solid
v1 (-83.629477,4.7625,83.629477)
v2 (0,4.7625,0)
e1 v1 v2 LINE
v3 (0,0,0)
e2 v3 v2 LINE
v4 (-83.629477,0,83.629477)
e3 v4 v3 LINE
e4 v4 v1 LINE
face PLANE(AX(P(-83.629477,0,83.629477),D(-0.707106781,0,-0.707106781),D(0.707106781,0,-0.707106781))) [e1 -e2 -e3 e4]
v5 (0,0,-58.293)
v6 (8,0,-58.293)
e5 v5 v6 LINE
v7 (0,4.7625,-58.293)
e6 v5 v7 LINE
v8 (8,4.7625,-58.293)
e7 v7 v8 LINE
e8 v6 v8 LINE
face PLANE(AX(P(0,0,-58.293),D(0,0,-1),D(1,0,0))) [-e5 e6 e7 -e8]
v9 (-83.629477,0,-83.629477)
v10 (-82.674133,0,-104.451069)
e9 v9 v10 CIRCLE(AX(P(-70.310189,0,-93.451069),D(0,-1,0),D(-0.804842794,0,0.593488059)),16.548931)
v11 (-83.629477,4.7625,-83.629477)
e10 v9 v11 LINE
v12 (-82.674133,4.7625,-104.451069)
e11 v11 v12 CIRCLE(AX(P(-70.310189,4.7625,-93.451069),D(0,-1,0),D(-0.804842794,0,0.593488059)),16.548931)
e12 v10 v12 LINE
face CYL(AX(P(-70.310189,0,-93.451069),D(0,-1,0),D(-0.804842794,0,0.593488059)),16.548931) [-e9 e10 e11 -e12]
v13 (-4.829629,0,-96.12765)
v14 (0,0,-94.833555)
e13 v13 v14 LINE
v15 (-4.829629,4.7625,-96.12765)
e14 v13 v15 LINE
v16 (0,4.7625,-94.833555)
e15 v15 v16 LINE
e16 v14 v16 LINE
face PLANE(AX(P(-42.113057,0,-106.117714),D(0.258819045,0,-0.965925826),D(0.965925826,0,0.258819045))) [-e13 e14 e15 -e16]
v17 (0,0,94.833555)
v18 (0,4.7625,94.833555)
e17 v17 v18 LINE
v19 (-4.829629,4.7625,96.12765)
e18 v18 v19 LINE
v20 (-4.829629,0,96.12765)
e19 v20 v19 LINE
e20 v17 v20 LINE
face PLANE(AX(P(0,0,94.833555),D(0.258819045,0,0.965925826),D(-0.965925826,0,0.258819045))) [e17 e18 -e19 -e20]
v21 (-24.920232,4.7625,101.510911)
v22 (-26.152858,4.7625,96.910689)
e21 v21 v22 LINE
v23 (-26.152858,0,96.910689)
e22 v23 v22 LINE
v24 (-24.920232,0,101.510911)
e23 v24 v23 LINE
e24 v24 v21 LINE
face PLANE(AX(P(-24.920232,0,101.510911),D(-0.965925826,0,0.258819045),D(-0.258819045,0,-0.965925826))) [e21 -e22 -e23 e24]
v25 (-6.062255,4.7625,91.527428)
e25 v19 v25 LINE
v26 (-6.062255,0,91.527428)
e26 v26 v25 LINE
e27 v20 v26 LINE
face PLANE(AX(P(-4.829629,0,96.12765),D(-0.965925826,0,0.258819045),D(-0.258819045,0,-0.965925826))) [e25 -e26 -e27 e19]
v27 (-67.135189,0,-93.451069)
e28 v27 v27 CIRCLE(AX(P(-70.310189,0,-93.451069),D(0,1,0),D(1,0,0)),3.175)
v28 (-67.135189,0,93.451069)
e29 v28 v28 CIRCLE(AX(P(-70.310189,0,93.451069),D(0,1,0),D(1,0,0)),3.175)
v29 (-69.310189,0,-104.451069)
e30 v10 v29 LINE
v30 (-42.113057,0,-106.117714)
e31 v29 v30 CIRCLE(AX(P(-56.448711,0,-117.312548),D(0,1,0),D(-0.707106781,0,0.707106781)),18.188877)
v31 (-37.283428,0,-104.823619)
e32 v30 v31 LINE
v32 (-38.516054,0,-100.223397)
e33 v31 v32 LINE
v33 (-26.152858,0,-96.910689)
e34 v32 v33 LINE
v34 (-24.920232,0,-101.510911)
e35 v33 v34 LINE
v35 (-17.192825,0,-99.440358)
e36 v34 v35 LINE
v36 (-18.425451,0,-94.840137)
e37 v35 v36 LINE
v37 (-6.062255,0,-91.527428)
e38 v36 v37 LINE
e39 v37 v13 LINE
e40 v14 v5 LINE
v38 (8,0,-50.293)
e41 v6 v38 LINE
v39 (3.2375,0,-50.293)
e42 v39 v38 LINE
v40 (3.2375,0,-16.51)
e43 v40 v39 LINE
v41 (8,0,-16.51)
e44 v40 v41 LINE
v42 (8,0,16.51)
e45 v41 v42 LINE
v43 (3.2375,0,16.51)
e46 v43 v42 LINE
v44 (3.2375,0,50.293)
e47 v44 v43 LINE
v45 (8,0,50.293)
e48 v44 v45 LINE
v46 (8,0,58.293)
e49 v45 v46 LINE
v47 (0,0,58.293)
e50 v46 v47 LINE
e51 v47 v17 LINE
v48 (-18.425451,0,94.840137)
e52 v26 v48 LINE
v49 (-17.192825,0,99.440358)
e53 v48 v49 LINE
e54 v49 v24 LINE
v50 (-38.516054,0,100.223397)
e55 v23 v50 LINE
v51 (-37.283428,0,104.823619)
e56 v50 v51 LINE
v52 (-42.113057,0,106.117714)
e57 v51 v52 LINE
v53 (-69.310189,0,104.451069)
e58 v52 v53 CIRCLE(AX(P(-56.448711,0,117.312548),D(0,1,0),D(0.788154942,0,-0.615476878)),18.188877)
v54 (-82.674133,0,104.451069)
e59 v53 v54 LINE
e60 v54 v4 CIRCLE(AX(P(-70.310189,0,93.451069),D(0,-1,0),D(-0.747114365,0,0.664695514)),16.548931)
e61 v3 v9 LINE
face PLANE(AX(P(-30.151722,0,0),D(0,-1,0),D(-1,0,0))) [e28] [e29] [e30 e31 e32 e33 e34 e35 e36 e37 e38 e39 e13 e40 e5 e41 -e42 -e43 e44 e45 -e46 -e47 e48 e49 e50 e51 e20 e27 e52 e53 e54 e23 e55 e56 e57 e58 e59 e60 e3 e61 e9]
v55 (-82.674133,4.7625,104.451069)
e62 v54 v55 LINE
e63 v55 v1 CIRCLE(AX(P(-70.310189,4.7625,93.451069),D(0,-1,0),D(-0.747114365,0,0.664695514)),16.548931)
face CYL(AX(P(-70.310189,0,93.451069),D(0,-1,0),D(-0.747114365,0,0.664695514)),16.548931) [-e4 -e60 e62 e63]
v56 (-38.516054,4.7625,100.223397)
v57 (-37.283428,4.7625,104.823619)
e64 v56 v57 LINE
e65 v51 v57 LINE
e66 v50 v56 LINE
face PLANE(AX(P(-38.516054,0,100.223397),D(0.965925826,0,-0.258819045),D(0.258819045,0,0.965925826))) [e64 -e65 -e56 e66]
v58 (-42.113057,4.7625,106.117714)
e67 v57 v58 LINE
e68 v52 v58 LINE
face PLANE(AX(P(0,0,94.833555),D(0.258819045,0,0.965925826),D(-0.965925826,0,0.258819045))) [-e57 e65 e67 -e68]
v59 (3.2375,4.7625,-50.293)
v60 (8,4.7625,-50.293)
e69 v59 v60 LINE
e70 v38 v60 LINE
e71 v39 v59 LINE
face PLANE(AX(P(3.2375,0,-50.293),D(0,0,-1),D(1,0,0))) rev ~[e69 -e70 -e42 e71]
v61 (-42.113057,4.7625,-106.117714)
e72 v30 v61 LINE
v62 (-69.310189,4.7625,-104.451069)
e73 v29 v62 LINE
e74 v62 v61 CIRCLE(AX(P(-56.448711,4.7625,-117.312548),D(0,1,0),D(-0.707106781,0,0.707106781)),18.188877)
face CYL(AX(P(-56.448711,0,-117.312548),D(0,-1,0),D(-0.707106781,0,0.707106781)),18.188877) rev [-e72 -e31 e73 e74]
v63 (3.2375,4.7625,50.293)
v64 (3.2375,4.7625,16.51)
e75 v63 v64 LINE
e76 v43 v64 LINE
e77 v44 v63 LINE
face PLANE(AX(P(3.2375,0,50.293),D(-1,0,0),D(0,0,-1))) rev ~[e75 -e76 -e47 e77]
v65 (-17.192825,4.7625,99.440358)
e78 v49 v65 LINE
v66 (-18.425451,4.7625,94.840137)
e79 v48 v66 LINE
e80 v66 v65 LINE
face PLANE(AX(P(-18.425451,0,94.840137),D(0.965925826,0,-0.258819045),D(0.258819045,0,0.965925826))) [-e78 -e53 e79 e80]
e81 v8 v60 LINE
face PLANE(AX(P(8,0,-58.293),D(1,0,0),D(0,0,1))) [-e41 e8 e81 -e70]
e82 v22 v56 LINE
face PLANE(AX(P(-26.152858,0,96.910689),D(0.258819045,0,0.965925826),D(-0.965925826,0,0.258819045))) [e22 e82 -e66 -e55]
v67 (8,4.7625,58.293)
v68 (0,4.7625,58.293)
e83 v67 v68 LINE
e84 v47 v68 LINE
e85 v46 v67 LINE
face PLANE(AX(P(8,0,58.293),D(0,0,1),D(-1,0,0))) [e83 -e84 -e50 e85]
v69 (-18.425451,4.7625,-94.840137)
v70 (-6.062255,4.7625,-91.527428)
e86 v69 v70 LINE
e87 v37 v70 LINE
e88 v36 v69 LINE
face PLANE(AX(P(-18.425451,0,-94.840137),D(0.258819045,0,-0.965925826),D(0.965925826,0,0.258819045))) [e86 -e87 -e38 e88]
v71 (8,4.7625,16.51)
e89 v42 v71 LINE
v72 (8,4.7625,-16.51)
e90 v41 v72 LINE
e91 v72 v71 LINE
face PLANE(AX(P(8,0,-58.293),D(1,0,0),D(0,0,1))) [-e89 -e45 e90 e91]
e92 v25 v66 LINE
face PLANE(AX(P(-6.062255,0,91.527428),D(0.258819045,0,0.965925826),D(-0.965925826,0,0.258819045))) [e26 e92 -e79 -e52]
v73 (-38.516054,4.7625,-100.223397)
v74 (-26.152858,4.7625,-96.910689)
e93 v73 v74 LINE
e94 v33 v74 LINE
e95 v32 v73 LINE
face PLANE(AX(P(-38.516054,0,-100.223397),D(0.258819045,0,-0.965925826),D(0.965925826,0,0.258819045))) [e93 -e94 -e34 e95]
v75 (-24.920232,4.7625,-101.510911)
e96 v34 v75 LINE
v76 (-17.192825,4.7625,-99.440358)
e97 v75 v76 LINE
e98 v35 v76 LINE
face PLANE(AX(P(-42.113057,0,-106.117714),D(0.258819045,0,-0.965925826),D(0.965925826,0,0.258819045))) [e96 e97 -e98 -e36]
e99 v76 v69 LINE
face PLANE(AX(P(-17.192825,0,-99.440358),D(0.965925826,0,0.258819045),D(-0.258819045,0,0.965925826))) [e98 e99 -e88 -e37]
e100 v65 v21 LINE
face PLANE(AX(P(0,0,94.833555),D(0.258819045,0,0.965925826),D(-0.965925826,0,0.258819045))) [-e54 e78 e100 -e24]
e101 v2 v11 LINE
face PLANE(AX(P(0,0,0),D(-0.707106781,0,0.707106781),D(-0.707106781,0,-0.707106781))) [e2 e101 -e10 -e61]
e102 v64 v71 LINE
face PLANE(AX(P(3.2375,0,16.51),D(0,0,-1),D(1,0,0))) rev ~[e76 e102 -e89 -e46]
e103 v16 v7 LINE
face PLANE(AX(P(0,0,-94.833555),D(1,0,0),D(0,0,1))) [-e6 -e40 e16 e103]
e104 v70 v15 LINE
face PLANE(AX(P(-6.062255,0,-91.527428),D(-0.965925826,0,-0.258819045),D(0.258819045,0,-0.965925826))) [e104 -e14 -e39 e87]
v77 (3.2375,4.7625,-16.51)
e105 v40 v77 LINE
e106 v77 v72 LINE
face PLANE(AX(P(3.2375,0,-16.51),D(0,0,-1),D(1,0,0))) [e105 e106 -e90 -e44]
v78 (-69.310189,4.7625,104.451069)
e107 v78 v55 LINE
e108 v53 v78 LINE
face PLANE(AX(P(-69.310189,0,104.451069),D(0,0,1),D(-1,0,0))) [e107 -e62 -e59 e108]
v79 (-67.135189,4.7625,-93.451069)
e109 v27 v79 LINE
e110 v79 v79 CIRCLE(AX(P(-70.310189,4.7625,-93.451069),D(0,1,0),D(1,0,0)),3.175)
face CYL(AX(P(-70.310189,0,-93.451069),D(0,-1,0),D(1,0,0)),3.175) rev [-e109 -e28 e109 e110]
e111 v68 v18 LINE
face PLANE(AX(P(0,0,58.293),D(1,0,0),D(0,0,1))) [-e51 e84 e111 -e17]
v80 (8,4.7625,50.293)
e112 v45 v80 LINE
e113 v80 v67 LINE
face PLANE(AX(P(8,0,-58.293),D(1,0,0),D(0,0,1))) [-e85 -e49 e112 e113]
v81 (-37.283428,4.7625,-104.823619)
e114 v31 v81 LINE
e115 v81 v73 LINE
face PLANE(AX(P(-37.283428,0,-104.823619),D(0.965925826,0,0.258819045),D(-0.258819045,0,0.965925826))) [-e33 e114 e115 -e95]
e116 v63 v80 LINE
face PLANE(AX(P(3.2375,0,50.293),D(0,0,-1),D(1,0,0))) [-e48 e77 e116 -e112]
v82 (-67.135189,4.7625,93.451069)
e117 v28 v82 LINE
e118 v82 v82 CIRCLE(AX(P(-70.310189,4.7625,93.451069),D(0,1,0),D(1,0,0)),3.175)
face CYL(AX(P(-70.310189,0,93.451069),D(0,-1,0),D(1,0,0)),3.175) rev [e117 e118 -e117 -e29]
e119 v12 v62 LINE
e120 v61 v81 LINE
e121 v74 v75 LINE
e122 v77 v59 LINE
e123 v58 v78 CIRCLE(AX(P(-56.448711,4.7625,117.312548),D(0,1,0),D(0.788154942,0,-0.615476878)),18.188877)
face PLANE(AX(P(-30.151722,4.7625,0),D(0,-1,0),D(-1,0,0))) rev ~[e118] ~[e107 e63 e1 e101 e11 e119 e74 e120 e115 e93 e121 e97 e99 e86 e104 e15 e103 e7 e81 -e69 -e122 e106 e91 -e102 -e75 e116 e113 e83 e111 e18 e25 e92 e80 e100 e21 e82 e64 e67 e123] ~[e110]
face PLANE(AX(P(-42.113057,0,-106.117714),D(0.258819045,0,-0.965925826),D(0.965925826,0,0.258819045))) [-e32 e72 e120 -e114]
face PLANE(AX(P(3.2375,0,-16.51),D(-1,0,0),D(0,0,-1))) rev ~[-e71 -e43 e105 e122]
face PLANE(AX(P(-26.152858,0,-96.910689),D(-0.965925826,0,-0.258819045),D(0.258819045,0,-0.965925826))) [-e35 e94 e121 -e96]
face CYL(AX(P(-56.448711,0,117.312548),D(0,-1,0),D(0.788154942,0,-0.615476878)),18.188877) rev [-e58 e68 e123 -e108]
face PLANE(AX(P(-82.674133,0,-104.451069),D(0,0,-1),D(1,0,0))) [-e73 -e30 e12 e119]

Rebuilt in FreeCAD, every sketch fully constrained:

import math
import FreeCAD as App
import Part
import Sketcher
Q = App.Units.Quantity

doc = App.newDocument("Part")
params = doc.addObject("Spreadsheet::Sheet", "Params")
for row, (alias, value) in enumerate([
    ("sketch1_diameter", "0.25 in"),
    ("sketch1_height", "4.59 in"),
    ("pad1_length", "0.1875 in"),
    ("sketch2_width", "0.1875 in"),
    ("sketch2_length", "0.1875 in"),
    ("pocket1_length", "5 mm"),
], start=1):
    params.set(f"A{row}", alias)
    params.set(f"B{row}", "=" + value)
    params.setAlias(f"B{row}", alias)

body = doc.addObject("PartDesign::Body", "Body")

sketch1 = body.newObject("Sketcher::SketchObject", "Sketch")
sketch1.AttachmentSupport = (doc.getObject("XZ_Plane"), [""])
sketch1.MapMode = "FlatFace"
sketch1.addGeometry([
    Part.LineSegment(App.Vector(-69.310189, -104.451069, 0), App.Vector(-82.674133, -104.451069, 0)),
    Part.ArcOfCircle(Part.Circle(App.Vector(-70.310189, -93.451069, 0), App.Vector(0, 0, 1), 16.548931), math.radians(143.595076), math.radians(221.65897)),
    Part.LineSegment(App.Vector(-83.629477, -83.629477, 0), App.Vector(0, 0, 0)),
    Part.LineSegment(App.Vector(0, 0, 0), App.Vector(-83.629477, 83.629477, 0)),
    Part.ArcOfCircle(Part.Circle(App.Vector(-70.310189, 93.451069, 0), App.Vector(0, 0, 1), 16.548931), math.radians(138.34103), math.radians(216.404924)),
    Part.LineSegment(App.Vector(-82.674133, 104.451069, 0), App.Vector(-69.310189, 104.451069, 0)),
    Part.ArcOfCircle(Part.Circle(App.Vector(-56.448711, 117.312548, 0), App.Vector(0, 0, 1), 18.188877), math.radians(-135), math.radians(-37.986579)),
    Part.LineSegment(App.Vector(-42.113057, 106.117714, 0), App.Vector(0, 94.833555, 0)),
    Part.LineSegment(App.Vector(0, 94.833555, 0), App.Vector(0, 58.293, 0)),
    Part.LineSegment(App.Vector(0, 58.293, 0), App.Vector(8, 58.293, 0)),
    Part.LineSegment(App.Vector(8, 58.293, 0), App.Vector(8, -58.293, 0)),
    Part.LineSegment(App.Vector(8, -58.293, 0), App.Vector(0, -58.293, 0)),
    Part.LineSegment(App.Vector(0, -58.293, 0), App.Vector(0, -94.833555, 0)),
    Part.LineSegment(App.Vector(0, -94.833555, 0), App.Vector(-42.113057, -106.117714, 0)),
    Part.ArcOfCircle(Part.Circle(App.Vector(-56.448711, -117.312548, 0), App.Vector(0, 0, 1), 18.188877), math.radians(37.986579), math.radians(135)),
    Part.Circle(App.Vector(-70.310189, 93.451069, 0), App.Vector(0, 0, 1), 3.175),
    Part.Circle(App.Vector(-70.310189, -93.451069, 0), App.Vector(0, 0, 1), 3.175),
], False)
sketch1.addConstraint([
    Sketcher.Constraint("Coincident", 0, 2, 1, 2),
    Sketcher.Constraint("Coincident", 1, 1, 2, 1),
    Sketcher.Constraint("Coincident", 2, 2, 3, 1),
    Sketcher.Constraint("Coincident", 3, 2, 4, 2),
    Sketcher.Constraint("Coincident", 4, 1, 5, 1),
    Sketcher.Constraint("Coincident", 5, 2, 6, 1),
    Sketcher.Constraint("Coincident", 6, 2, 7, 1),
    Sketcher.Constraint("Coincident", 7, 2, 8, 1),
    Sketcher.Constraint("Coincident", 8, 2, 9, 1),
    Sketcher.Constraint("Coincident", 9, 2, 10, 1),
    Sketcher.Constraint("Coincident", 10, 2, 11, 1),
    Sketcher.Constraint("Coincident", 11, 2, 12, 1),
    Sketcher.Constraint("Coincident", 12, 2, 13, 1),
    Sketcher.Constraint("Coincident", 13, 2, 14, 1),
    Sketcher.Constraint("Coincident", 14, 2, 0, 1),
    Sketcher.Constraint("Horizontal", 0),
    Sketcher.Constraint("Horizontal", 5),
    Sketcher.Constraint("Vertical", 8),
    Sketcher.Constraint("Horizontal", 9),
    Sketcher.Constraint("Vertical", 10),
    Sketcher.Constraint("Horizontal", 11),
    Sketcher.Constraint("Vertical", 12),
    Sketcher.Constraint("Coincident", 2, 2, -1, 1),
    Sketcher.Constraint("Coincident", 15, 3, 4, 3),
    Sketcher.Constraint("Coincident", 16, 3, 1, 3),
    Sketcher.Constraint("Equal", 1, 4),
    Sketcher.Constraint("Equal", 6, 14),
    Sketcher.Constraint("Equal", 15, 16),
    Sketcher.Constraint("Symmetric", 8, 2, 11, 2, -1, 1),
    Sketcher.Constraint("Symmetric", 1, 3, 4, 3, -1),
    Sketcher.Constraint("Symmetric", 6, 3, 14, 3, -1),
    Sketcher.Constraint("Symmetric", 7, 2, 12, 2, -1),
    Sketcher.Constraint("Perpendicular", 2, 3),
    Sketcher.Constraint("Vertical", 1, 1, 3, 2),
    Sketcher.Constraint("Vertical", 0, 2, 4, 1),
    Sketcher.Constraint("Vertical", 6, 2, 13, 2),
    Sketcher.Constraint("Diameter", 15, Q("0.25 in")),
    Sketcher.Constraint("Angle", 7, Q("-15 deg")),
    Sketcher.Constraint("DistanceY", 10, 2, 10, 1, Q("4.59 in")),
    Sketcher.Constraint("Radius", 1, 16.548931),
    Sketcher.Constraint("DistanceX", 9, 1, 9, 2, 8.0),
    Sketcher.Constraint("Radius", 6, 18.188877),
    Sketcher.Constraint("DistanceY", 0, 2, 1, 3, 11.0),
    Sketcher.Constraint("DistanceX", 15, 3, 5, 2, 1.0),
    Sketcher.Constraint("Distance", 2, 118.26994),
    Sketcher.Constraint("DistanceY", 8, 2, 8, 1, 36.540555),
    Sketcher.Constraint("DistanceX", 1, 3, -1, 1, 70.310189),
    Sketcher.Constraint("DistanceX", 6, 3, -1, 1, 56.448711),
])
sketch1.setExpression("Constraints[36]", "Params.sketch1_diameter")
sketch1.setExpression("Constraints[38]", "Params.sketch1_height")
pad1 = body.newObject("PartDesign::Pad", "Pad")
pad1.Profile = sketch1
pad1.setExpression("Length", "Params.pad1_length")
pad1.Reversed = True

sketch2 = body.newObject("Sketcher::SketchObject", "Sketch001")
sketch2.AttachmentSupport = (doc.getObject("XZ_Plane"), [""])
sketch2.MapMode = "FlatFace"
sketch2.addGeometry([
    Part.LineSegment(App.Vector(-17.192825, 99.440358, 0), App.Vector(-4.829629, 96.12765, 0)),
    Part.LineSegment(App.Vector(-4.829629, 96.12765, 0), App.Vector(-6.062255, 91.527428, 0)),
    Part.LineSegment(App.Vector(-6.062255, 91.527428, 0), App.Vector(-18.425451, 94.840137, 0)),
    Part.LineSegment(App.Vector(-18.425451, 94.840137, 0), App.Vector(-17.192825, 99.440358, 0)),
    Part.LineSegment(App.Vector(-37.283428, 104.823619, 0), App.Vector(-24.920232, 101.510911, 0)),
    Part.LineSegment(App.Vector(-24.920232, 101.510911, 0), App.Vector(-26.152858, 96.910689, 0)),
    Part.LineSegment(App.Vector(-26.152858, 96.910689, 0), App.Vector(-38.516054, 100.223397, 0)),
    Part.LineSegment(App.Vector(-38.516054, 100.223397, 0), App.Vector(-37.283428, 104.823619, 0)),
    Part.LineSegment(App.Vector(3.2375, 16.51, 0), App.Vector(3.2375, 50.293, 0)),
    Part.LineSegment(App.Vector(3.2375, 50.293, 0), App.Vector(8, 50.293, 0)),
    Part.LineSegment(App.Vector(8, 50.293, 0), App.Vector(8, 16.51, 0)),
    Part.LineSegment(App.Vector(8, 16.51, 0), App.Vector(3.2375, 16.51, 0)),
    Part.LineSegment(App.Vector(-38.516054, -100.223397, 0), App.Vector(-26.152858, -96.910689, 0)),
    Part.LineSegment(App.Vector(-26.152858, -96.910689, 0), App.Vector(-24.920232, -101.510911, 0)),
    Part.LineSegment(App.Vector(-24.920232, -101.510911, 0), App.Vector(-37.283428, -104.823619, 0)),
    Part.LineSegment(App.Vector(-37.283428, -104.823619, 0), App.Vector(-38.516054, -100.223397, 0)),
    Part.LineSegment(App.Vector(-18.425451, -94.840137, 0), App.Vector(-6.062255, -91.527428, 0)),
    Part.LineSegment(App.Vector(-6.062255, -91.527428, 0), App.Vector(-4.829629, -96.12765, 0)),
    Part.LineSegment(App.Vector(-4.829629, -96.12765, 0), App.Vector(-17.192825, -99.440358, 0)),
    Part.LineSegment(App.Vector(-17.192825, -99.440358, 0), App.Vector(-18.425451, -94.840137, 0)),
    Part.LineSegment(App.Vector(3.2375, -50.293, 0), App.Vector(3.2375, -16.51, 0)),
    Part.LineSegment(App.Vector(3.2375, -16.51, 0), App.Vector(8, -16.51, 0)),
    Part.LineSegment(App.Vector(8, -16.51, 0), App.Vector(8, -50.293, 0)),
    Part.LineSegment(App.Vector(8, -50.293, 0), App.Vector(3.2375, -50.293, 0)),
], False)
sketch2.addConstraint([
    Sketcher.Constraint("Coincident", 0, 2, 1, 1),
    Sketcher.Constraint("Coincident", 1, 2, 2, 1),
    Sketcher.Constraint("Coincident", 2, 2, 3, 1),
    Sketcher.Constraint("Coincident", 3, 2, 0, 1),
    Sketcher.Constraint("Coincident", 4, 2, 5, 1),
    Sketcher.Constraint("Coincident", 5, 2, 6, 1),
    Sketcher.Constraint("Coincident", 6, 2, 7, 1),
    Sketcher.Constraint("Coincident", 7, 2, 4, 1),
    Sketcher.Constraint("Coincident", 8, 2, 9, 1),
    Sketcher.Constraint("Coincident", 9, 2, 10, 1),
    Sketcher.Constraint("Coincident", 10, 2, 11, 1),
    Sketcher.Constraint("Coincident", 11, 2, 8, 1),
    Sketcher.Constraint("Coincident", 12, 2, 13, 1),
    Sketcher.Constraint("Coincident", 13, 2, 14, 1),
    Sketcher.Constraint("Coincident", 14, 2, 15, 1),
    Sketcher.Constraint("Coincident", 15, 2, 12, 1),
    Sketcher.Constraint("Coincident", 16, 2, 17, 1),
    Sketcher.Constraint("Coincident", 17, 2, 18, 1),
    Sketcher.Constraint("Coincident", 18, 2, 19, 1),
    Sketcher.Constraint("Coincident", 19, 2, 16, 1),
    Sketcher.Constraint("Coincident", 20, 2, 21, 1),
    Sketcher.Constraint("Coincident", 21, 2, 22, 1),
    Sketcher.Constraint("Coincident", 22, 2, 23, 1),
    Sketcher.Constraint("Coincident", 23, 2, 20, 1),
    Sketcher.Constraint("Vertical", 8),
    Sketcher.Constraint("Horizontal", 9),
    Sketcher.Constraint("Vertical", 10),
    Sketcher.Constraint("Horizontal", 11),
    Sketcher.Constraint("Vertical", 20),
    Sketcher.Constraint("Horizontal", 21),
    Sketcher.Constraint("Vertical", 22),
    Sketcher.Constraint("Horizontal", 23),
    Sketcher.Constraint("Symmetric", 5, 2, 12, 2, -1),
    Sketcher.Constraint("Symmetric", 4, 2, 13, 2, -1),
    Sketcher.Constraint("Symmetric", 7, 2, 14, 2, -1),
    Sketcher.Constraint("Symmetric", 6, 2, 15, 2, -1),
    Sketcher.Constraint("Symmetric", 1, 2, 16, 2, -1),
    Sketcher.Constraint("Symmetric", 0, 2, 17, 2, -1),
    Sketcher.Constraint("Symmetric", 3, 2, 18, 2, -1),
    Sketcher.Constraint("Symmetric", 2, 2, 19, 2, -1),
    Sketcher.Constraint("Symmetric", 11, 2, 20, 2, -1),
    Sketcher.Constraint("Symmetric", 9, 2, 22, 2, -1),
    Sketcher.Constraint("Perpendicular", 0, 1),
    Sketcher.Constraint("Perpendicular", 1, 2),
    Sketcher.Constraint("Perpendicular", 2, 3),
    Sketcher.Constraint("Perpendicular", 3, 4),
    Sketcher.Constraint("Perpendicular", 4, 5),
    Sketcher.Constraint("Perpendicular", 5, 6),
    Sketcher.Constraint("Perpendicular", 6, 7),
    Sketcher.Constraint("Equal", 2, 4),
    Sketcher.Constraint("Equal", 3, 5),
    Sketcher.Constraint("Angle", 0, Q("-15 deg")),
    Sketcher.Constraint("DistanceY", 20, 2, 11, 2, Q("1.3 in")),
    Sketcher.Constraint("DistanceX", 9, 1, 9, 2, Q("0.1875 in")),
    Sketcher.Constraint("Distance", 1, Q("0.1875 in")),
    Sketcher.Constraint("DistanceY", 8, 1, 8, 2, 33.783),
    Sketcher.Constraint("DistanceX", 4, 2, 2, 2, Q("0.2557 in")),
    Sketcher.Constraint("DistanceX", -1, 1, 8, 2, 3.2375),
    Sketcher.Constraint("DistanceX", 6, 2, 1, 2, 32.453799),
    Sketcher.Constraint("DistanceX", 0, 2, -1, 1, 4.829629),
    Sketcher.Constraint("DistanceY", -1, 1, 0, 2, 96.12765),
    Sketcher.Constraint("DistanceY", -1, 1, 4, 2, 101.510911),
])
sketch2.setExpression("Constraints[53]", "Params.sketch2_width")
sketch2.setExpression("Constraints[54]", "Params.sketch2_length")
pocket1 = body.newObject("PartDesign::Pocket", "Pocket")
pocket1.Profile = sketch2
pocket1.setExpression("Length", "Params.pocket1_length")

doc.recompute()
